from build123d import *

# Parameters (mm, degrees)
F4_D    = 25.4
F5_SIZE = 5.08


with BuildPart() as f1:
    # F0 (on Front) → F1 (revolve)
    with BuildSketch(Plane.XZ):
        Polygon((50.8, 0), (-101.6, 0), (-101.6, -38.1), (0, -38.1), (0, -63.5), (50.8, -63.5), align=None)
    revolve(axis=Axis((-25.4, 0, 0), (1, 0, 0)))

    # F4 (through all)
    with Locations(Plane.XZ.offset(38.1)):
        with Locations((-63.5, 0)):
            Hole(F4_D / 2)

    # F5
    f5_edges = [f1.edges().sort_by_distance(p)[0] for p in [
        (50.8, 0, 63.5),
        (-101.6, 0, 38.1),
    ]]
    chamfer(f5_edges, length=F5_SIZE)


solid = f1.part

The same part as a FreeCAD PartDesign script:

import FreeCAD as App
import Part
import Sketcher
Q = App.Units.Quantity


def edges_at(feature, points):
    """Names of the edges that pass closest to the given points."""
    edges = feature.Shape.Edges
    near = lambda p: min(range(len(edges)), key=lambda i: edges[i].distToShape(Part.Vertex(*p))[0])
    return sorted({f"Edge{near(p) + 1}" for p in points})

doc = App.newDocument("Part")
params = doc.addObject("Spreadsheet::Sheet", "Params")
for row, (alias, value) in enumerate([
    ("sketch1_width", "6 in"),
    ("sketch1_width2", "4 in"),
    ("sketch1_height", "1 in"),
    ("sketch1_height2", "1.5 in"),
    ("revolution_angle", "360 deg"),
    ("sketch2_diameter", "1 in"),
    ("hole_diameter", "1 in"),
    ("chamfer_size", "0.2 in"),
], start=1):
    params.set(f"A{row}", alias)
    params.set(f"B{row}", "=" + value)
    params.setAlias(f"B{row}", alias)

body = doc.addObject("PartDesign::Body", "Body")

# Sketch on XZ plane
sketch1 = body.newObject("Sketcher::SketchObject", "Sketch")
sketch1.AttachmentSupport = (doc.getObject("XZ_Plane"), [""])
sketch1.MapMode = "FlatFace"
sketch1.addGeometry([
    Part.LineSegment(App.Vector(51, 0, 0), App.Vector(-102, 0, 0)),  # 0
    Part.LineSegment(App.Vector(-102, 0, 0), App.Vector(-102, -38, 0)),  # 1
    Part.LineSegment(App.Vector(-102, -38, 0), App.Vector(0, -38, 0)),  # 2
    Part.LineSegment(App.Vector(0, -38, 0), App.Vector(0, -64, 0)),  # 3
    Part.LineSegment(App.Vector(0, -64, 0), App.Vector(51, -64, 0)),  # 4
    Part.LineSegment(App.Vector(51, -64, 0), App.Vector(51, 0, 0)),  # 5
], False)
sketch1.addConstraint([
    Sketcher.Constraint("Coincident", 0, 2, 1, 1),
    Sketcher.Constraint("Coincident", 1, 2, 2, 1),
    Sketcher.Constraint("Coincident", 2, 2, 3, 1),
    Sketcher.Constraint("Coincident", 3, 2, 4, 1),
    Sketcher.Constraint("Coincident", 4, 2, 5, 1),
    Sketcher.Constraint("Coincident", 5, 2, 0, 1),
    Sketcher.Constraint("Horizontal", 0),
    Sketcher.Constraint("Vertical", 1),
    Sketcher.Constraint("Horizontal", 2),
    Sketcher.Constraint("Vertical", 3),
    Sketcher.Constraint("Horizontal", 4),
    Sketcher.Constraint("Vertical", 5),
    Sketcher.Constraint("PointOnObject", 0, 2, -1),
    Sketcher.Constraint("PointOnObject", 2, 2, -2),
    Sketcher.Constraint("DistanceX", 0, 2, 0, 1, Q("6 in")),
    Sketcher.Constraint("DistanceX", 2, 1, 2, 2, Q("4 in")),
    Sketcher.Constraint("DistanceY", 3, 2, 3, 1, Q("1 in")),
    Sketcher.Constraint("DistanceY", 1, 2, 1, 1, Q("1.5 in")),
])
sketch1.setExpression("Constraints[14]", "Params.sketch1_width")
sketch1.setExpression("Constraints[15]", "Params.sketch1_width2")
sketch1.setExpression("Constraints[16]", "Params.sketch1_height")
sketch1.setExpression("Constraints[17]", "Params.sketch1_height2")
revolution = body.newObject("PartDesign::Revolution", "Revolution")
revolution.Profile = sketch1
revolution.ReferenceAxis = (sketch1, ["H_Axis"])
revolution.setExpression("Angle", "Params.revolution_angle")

# Sketch on XZ plane
sketch2 = body.newObject("Sketcher::SketchObject", "Sketch001")
sketch2.AttachmentSupport = (doc.getObject("XZ_Plane"), [""])
sketch2.MapMode = "FlatFace"
sketch2.AttachmentOffset = App.Placement(App.Vector(0, 0, 1.5 * 25.4), App.Rotation())
sketch2.addGeometry(Part.Circle(App.Vector(-64, 0, 0), App.Vector(0, 0, 1), 13), False)
sketch2.addConstraint([
    Sketcher.Constraint("PointOnObject", 0, 3, -1),
    Sketcher.Constraint("Diameter", 0, Q("1 in")),
    Sketcher.Constraint("DistanceX", 0, 3, -1, 1, Q("2.5 in")),
])
sketch2.setExpression("Constraints[1]", "Params.sketch2_diameter")
doc.recompute()
hole = body.newObject("PartDesign::Hole", "Hole")
hole.Profile = sketch2
hole.ThreadType = "None"
hole.setExpression("Diameter", "Params.hole_diameter")
hole.DepthType = "ThroughAll"
doc.recompute()

chamfer = body.newObject("PartDesign::Chamfer", "Chamfer")
chamfer.Base = (hole, edges_at(hole, [(50.8, 0, 63.5), (-101.6, 0, 38.1)]))
chamfer.setExpression("Size", "Params.chamfer_size")

doc.recompute()
